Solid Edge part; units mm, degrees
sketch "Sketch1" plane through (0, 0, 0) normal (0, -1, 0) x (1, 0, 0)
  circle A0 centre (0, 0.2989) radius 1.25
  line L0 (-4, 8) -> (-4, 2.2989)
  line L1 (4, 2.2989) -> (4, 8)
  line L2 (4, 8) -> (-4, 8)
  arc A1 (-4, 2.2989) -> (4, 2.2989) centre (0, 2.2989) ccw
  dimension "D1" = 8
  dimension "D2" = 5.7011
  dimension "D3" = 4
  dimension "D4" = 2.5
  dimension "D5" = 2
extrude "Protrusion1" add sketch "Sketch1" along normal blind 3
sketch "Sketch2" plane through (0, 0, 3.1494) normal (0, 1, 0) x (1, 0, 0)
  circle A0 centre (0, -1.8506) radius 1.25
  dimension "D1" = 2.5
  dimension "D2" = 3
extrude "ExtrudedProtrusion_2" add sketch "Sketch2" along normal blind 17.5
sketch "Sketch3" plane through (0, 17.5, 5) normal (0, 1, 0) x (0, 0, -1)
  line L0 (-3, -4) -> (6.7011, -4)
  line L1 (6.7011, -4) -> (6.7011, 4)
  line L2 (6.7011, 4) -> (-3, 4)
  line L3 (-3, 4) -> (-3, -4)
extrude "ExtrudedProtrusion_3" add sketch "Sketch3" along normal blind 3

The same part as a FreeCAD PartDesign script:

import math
import FreeCAD as App
import Part
import Sketcher

doc = App.newDocument("Part")
body = doc.addObject("PartDesign::Body", "Body")

# Sketch on XZ plane
sketch1 = body.newObject("Sketcher::SketchObject", "Sketch")
sketch1.AttachmentSupport = (doc.getObject("XZ_Plane"), [""])
sketch1.MapMode = "FlatFace"
sketch1.addGeometry([
    Part.LineSegment(App.Vector(4, 8, 0), App.Vector(-4, 8, 0)),  # 0
    Part.LineSegment(App.Vector(-4, 8, 0), App.Vector(-4, 2.2989, 0)),  # 1
    Part.ArcOfCircle(Part.Circle(App.Vector(0, 2.2989, 0), App.Vector(0, 0, 1), 4), math.radians(180), math.radians(360)),  # 2
    Part.LineSegment(App.Vector(4, 2.2989, 0), App.Vector(4, 8, 0)),  # 3
    Part.Circle(App.Vector(0, 0.2989, 0), App.Vector(0, 0, 1), 1.25),  # 4
], False)
sketch1.addConstraint([
    Sketcher.Constraint("Coincident", 0, 2, 1, 1),
    Sketcher.Constraint("Tangent", 1, 2, 2, 1),
    Sketcher.Constraint("Tangent", 2, 2, 3, 1),
    Sketcher.Constraint("Coincident", 3, 2, 0, 1),
    Sketcher.Constraint("Horizontal", 0),
    Sketcher.Constraint("Vertical", 1),
    Sketcher.Constraint("Vertical", 3),
    Sketcher.Constraint("PointOnObject", 2, 3, -2),
    Sketcher.Constraint("PointOnObject", 4, 3, -2),
    Sketcher.Constraint("Radius", 2, 4.0),
    Sketcher.Constraint("Diameter", 4, 2.5),
    Sketcher.Constraint("DistanceY", -1, 1, 0, 2, 8.0),
    Sketcher.Constraint("DistanceY", 4, 3, 2, 3, 2.0),
    Sketcher.Constraint("DistanceY", 1, 2, 1, 1, 5.701),
])
pad1 = body.newObject("PartDesign::Pad", "Pad")
pad1.Profile = sketch1
pad1.Length = 3

# Sketch on XZ plane
sketch2 = body.newObject("Sketcher::SketchObject", "Sketch001")
sketch2.AttachmentSupport = (doc.getObject("XZ_Plane"), [""])
sketch2.MapMode = "FlatFace"
sketch2.addGeometry(Part.Circle(App.Vector(0, 5, 0), App.Vector(0, 0, 1), 1.25), False)
sketch2.addConstraint([
    Sketcher.Constraint("PointOnObject", 0, 3, -2),
    Sketcher.Constraint("Diameter", 0, 2.5),
    Sketcher.Constraint("DistanceY", -1, 1, 0, 3, 5.0),
])
pad2 = body.newObject("PartDesign::Pad", "Pad001")
pad2.Profile = sketch2
pad2.Length = 17.5
pad2.Reversed = True

# Sketch on XZ plane
sketch3 = body.newObject("Sketcher::SketchObject", "Sketch002")
sketch3.AttachmentSupport = (doc.getObject("XZ_Plane"), [""])
sketch3.MapMode = "FlatFace"
sketch3.AttachmentOffset = App.Placement(App.Vector(0, 0, -17.5), App.Rotation())
sketch3.addGeometry([
    Part.LineSegment(App.Vector(-4, 8, 0), App.Vector(4, 8, 0)),
    Part.LineSegment(App.Vector(4, 8, 0), App.Vector(4, -1.7011, 0)),
    Part.LineSegment(App.Vector(4, -1.7011, 0), App.Vector(-4, -1.7011, 0)),
    Part.LineSegment(App.Vector(-4, -1.7011, 0), App.Vector(-4, 8, 0)),
], False)
sketch3.addConstraint([
    Sketcher.Constraint("Coincident", 0, 2, 1, 1),
    Sketcher.Constraint("Coincident", 1, 2, 2, 1),
    Sketcher.Constraint("Coincident", 2, 2, 3, 1),
    Sketcher.Constraint("Coincident", 3, 2, 0, 1),
    Sketcher.Constraint("Horizontal", 0),
    Sketcher.Constraint("Vertical", 1),
    Sketcher.Constraint("Horizontal", 2),
    Sketcher.Constraint("Vertical", 3),
    Sketcher.Constraint("DistanceX", 0, 1, 0, 2, 8.0),
    Sketcher.Constraint("DistanceX", -1, 1, 0, 2, 4.0),
    Sketcher.Constraint("DistanceY", -1, 1, 0, 2, 8.0),
    Sketcher.Constraint("DistanceY", 1, 2, 1, 1, 9.701),
])
pad3 = body.newObject("PartDesign::Pad", "Pad002")
pad3.Profile = sketch3
pad3.Length = 3
pad3.Reversed = True

doc.recompute()
